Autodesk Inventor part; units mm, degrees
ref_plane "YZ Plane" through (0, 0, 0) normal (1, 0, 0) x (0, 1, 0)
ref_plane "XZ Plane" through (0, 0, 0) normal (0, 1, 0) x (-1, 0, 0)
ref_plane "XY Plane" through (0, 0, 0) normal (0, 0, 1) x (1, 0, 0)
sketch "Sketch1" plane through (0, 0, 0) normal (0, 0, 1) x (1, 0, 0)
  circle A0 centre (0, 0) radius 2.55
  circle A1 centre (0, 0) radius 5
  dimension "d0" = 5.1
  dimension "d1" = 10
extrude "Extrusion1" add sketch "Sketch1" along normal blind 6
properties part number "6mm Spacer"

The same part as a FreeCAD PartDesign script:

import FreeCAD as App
import Part
import Sketcher

V = App.Vector
Q = App.Units.Quantity

doc = App.newDocument("Part")
params = doc.addObject("Spreadsheet::Sheet", "Params")
for row, (alias, value) in enumerate([
    ("sketch1_diameter", "10 mm"),
    ("sketch1_diameter2", "5.1 mm"),
    ("pad1_length", "6 mm"),
], start=1):
    params.set(f"A{row}", alias)
    params.set(f"B{row}", "=" + value)
    params.setAlias(f"B{row}", alias)

body = doc.addObject("PartDesign::Body", "Body")

# Sketch on XY plane
sketch1 = body.newObject("Sketcher::SketchObject", "Sketch")
sketch1.AttachmentSupport = (doc.getObject("XY_Plane"), [""])
sketch1.MapMode = "FlatFace"
sketch1.addGeometry([
    Part.Circle(V(0, 0, 0), V(0, 0, 1), 5),
    Part.Circle(V(0, 0, 0), V(0, 0, 1), 2.5),
], False)
sketch1.addConstraint([
    Sketcher.Constraint("Coincident", 0, 3, -1, 1),
    Sketcher.Constraint("Coincident", 1, 3, -1, 1),
    Sketcher.Constraint("Diameter", 0, Q("10 mm")),
    Sketcher.Constraint("Diameter", 1, Q("5.1 mm")),
])
sketch1.setExpression("Constraints[2]", "Params.sketch1_diameter")
sketch1.setExpression("Constraints[3]", "Params.sketch1_diameter2")
pad1 = body.newObject("PartDesign::Pad", "Pad")
pad1.Profile = sketch1
pad1.setExpression("Length", "Params.pad1_length")

doc.recompute()
